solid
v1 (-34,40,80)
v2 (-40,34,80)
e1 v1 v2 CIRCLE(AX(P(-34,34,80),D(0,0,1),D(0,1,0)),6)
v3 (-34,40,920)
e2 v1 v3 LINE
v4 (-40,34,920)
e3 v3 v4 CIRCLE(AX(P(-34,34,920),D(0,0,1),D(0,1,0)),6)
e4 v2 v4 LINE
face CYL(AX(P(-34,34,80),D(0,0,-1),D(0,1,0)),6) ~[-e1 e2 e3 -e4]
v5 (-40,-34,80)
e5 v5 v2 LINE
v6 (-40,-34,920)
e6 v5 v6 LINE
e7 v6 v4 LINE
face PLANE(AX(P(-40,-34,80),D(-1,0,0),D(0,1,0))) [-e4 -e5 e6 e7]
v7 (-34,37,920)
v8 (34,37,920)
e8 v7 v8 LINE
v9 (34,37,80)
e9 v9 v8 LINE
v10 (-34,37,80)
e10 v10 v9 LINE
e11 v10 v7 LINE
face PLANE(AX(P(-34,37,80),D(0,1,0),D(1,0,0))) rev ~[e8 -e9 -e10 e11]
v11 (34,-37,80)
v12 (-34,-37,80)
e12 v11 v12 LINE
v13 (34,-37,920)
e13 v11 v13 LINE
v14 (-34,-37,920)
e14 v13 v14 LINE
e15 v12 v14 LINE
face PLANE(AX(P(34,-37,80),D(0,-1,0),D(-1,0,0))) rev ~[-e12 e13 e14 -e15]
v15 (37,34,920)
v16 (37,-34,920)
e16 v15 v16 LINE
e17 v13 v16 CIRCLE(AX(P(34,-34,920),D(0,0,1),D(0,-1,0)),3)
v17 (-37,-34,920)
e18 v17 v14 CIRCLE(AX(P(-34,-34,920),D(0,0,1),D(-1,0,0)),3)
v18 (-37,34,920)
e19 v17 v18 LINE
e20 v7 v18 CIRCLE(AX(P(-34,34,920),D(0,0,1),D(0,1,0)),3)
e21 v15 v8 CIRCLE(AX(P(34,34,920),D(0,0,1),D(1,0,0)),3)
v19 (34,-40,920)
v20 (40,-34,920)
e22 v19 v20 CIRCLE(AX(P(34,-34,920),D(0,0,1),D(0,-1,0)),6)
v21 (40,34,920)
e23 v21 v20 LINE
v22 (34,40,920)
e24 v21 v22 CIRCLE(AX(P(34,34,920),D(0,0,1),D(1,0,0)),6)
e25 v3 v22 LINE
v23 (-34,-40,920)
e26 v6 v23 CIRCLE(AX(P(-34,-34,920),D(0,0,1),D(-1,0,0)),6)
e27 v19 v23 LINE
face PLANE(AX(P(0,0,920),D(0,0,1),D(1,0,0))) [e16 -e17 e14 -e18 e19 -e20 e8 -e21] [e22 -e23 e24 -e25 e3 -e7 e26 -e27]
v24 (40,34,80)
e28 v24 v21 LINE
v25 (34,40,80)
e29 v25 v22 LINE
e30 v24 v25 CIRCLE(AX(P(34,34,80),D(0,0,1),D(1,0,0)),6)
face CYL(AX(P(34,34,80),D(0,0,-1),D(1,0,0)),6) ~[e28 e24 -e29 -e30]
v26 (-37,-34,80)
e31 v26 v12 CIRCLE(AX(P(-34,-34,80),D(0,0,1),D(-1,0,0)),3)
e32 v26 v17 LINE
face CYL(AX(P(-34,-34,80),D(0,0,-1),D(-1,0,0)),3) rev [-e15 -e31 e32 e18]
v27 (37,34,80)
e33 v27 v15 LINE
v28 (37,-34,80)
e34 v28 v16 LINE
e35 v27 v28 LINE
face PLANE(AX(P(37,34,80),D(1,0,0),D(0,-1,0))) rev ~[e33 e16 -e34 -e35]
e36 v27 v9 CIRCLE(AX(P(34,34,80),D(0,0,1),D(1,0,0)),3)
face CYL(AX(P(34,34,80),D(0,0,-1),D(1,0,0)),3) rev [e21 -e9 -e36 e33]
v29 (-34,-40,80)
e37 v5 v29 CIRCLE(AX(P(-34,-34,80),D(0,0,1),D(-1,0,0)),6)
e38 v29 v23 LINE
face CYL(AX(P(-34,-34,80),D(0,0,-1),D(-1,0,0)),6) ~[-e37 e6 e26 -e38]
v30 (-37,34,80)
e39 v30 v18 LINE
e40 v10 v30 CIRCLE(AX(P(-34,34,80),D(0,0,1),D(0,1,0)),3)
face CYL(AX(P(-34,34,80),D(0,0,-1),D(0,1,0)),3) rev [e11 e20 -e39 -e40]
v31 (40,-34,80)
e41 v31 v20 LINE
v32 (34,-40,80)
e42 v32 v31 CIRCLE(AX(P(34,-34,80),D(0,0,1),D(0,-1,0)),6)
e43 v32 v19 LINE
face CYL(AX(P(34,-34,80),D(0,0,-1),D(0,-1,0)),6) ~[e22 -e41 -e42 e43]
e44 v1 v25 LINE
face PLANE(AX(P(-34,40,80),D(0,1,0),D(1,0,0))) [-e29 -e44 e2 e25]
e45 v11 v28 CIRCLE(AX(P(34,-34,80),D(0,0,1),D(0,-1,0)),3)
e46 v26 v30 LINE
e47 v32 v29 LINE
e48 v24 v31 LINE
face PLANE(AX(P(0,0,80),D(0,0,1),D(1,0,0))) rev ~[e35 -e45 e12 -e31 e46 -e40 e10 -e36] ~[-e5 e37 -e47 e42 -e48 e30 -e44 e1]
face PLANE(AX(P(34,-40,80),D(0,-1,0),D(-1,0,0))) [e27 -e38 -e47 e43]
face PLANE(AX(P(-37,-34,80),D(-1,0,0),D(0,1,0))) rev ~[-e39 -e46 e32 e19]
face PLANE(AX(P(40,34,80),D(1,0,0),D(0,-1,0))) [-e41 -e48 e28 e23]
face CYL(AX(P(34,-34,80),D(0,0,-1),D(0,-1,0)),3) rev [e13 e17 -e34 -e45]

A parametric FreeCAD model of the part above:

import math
import FreeCAD as App
import Part
import Sketcher
from FreeCAD import Vector
Q = App.Units.Quantity

doc = App.newDocument("Part")
params = doc.addObject("Spreadsheet::Sheet", "Params")
for row, (alias, value) in enumerate([
    ("sketch1_radius", "6 mm"),
    ("sketch1_radius2", "3 mm"),
    ("pad1_length", "840 mm"),
], start=1):
    params.set(f"A{row}", alias)
    params.set(f"B{row}", "=" + value)
    params.setAlias(f"B{row}", alias)

body = doc.addObject("PartDesign::Body", "Body")

# Sketch on XY plane
sketch1 = body.newObject("Sketcher::SketchObject", "Sketch")
sketch1.AttachmentSupport = (doc.getObject("XY_Plane"), [""])
sketch1.MapMode = "FlatFace"
sketch1.AttachmentOffset = App.Placement(Vector(0, 0, 80), App.Rotation())
sketch1.addGeometry([
    Part.LineSegment(Vector(-40, 34, 0), Vector(-40, -34, 0)),  # 0
    Part.ArcOfCircle(Part.Circle(Vector(-34, -34, 0), Vector(0, 0, 1), 6), math.radians(180), math.radians(270)),  # 1
    Part.LineSegment(Vector(-34, -40, 0), Vector(34, -40, 0)),  # 2
    Part.ArcOfCircle(Part.Circle(Vector(34, -34, 0), Vector(0, 0, 1), 6), math.radians(-90), math.radians(0)),  # 3
    Part.LineSegment(Vector(40, -34, 0), Vector(40, 34, 0)),  # 4
    Part.ArcOfCircle(Part.Circle(Vector(34, 34, 0), Vector(0, 0, 1), 6), math.radians(0), math.radians(90)),  # 5
    Part.LineSegment(Vector(34, 40, 0), Vector(-34, 40, 0)),  # 6
    Part.ArcOfCircle(Part.Circle(Vector(-34, 34, 0), Vector(0, 0, 1), 6), math.radians(90), math.radians(180)),  # 7
    Part.ArcOfCircle(Part.Circle(Vector(-34, 34, 0), Vector(0, 0, 1), 3), math.radians(90), math.radians(180)),  # 8
    Part.LineSegment(Vector(-34, 37, 0), Vector(34, 37, 0)),  # 9
    Part.ArcOfCircle(Part.Circle(Vector(34, 34, 0), Vector(0, 0, 1), 3), math.radians(0), math.radians(90)),  # 10
    Part.LineSegment(Vector(37, 34, 0), Vector(37, -34, 0)),  # 11
    Part.ArcOfCircle(Part.Circle(Vector(34, -34, 0), Vector(0, 0, 1), 3), math.radians(-90), math.radians(0)),  # 12
    Part.LineSegment(Vector(34, -37, 0), Vector(-34, -37, 0)),  # 13
    Part.ArcOfCircle(Part.Circle(Vector(-34, -34, 0), Vector(0, 0, 1), 3), math.radians(180), math.radians(270)),  # 14
    Part.LineSegment(Vector(-37, -34, 0), Vector(-37, 34, 0)),  # 15
], False)
sketch1.addConstraint([
    Sketcher.Constraint("Tangent", 0, 2, 1, 1),
    Sketcher.Constraint("Tangent", 1, 2, 2, 1),
    Sketcher.Constraint("Tangent", 2, 2, 3, 1),
    Sketcher.Constraint("Tangent", 3, 2, 4, 1),
    Sketcher.Constraint("Tangent", 4, 2, 5, 1),
    Sketcher.Constraint("Tangent", 5, 2, 6, 1),
    Sketcher.Constraint("Tangent", 6, 2, 7, 1),
    Sketcher.Constraint("Tangent", 7, 2, 0, 1),
    Sketcher.Constraint("Tangent", 8, 1, 9, 1),
    Sketcher.Constraint("Tangent", 9, 2, 10, 2),
    Sketcher.Constraint("Tangent", 10, 1, 11, 1),
    Sketcher.Constraint("Tangent", 11, 2, 12, 2),
    Sketcher.Constraint("Tangent", 12, 1, 13, 1),
    Sketcher.Constraint("Tangent", 13, 2, 14, 2),
    Sketcher.Constraint("Tangent", 14, 1, 15, 1),
    Sketcher.Constraint("Tangent", 15, 2, 8, 2),
    Sketcher.Constraint("Vertical", 0),
    Sketcher.Constraint("Horizontal", 2),
    Sketcher.Constraint("Vertical", 4),
    Sketcher.Constraint("Horizontal", 6),
    Sketcher.Constraint("Horizontal", 9),
    Sketcher.Constraint("Vertical", 11),
    Sketcher.Constraint("Horizontal", 13),
    Sketcher.Constraint("Vertical", 15),
    Sketcher.Constraint("Coincident", 8, 3, 7, 3),
    Sketcher.Constraint("Coincident", 10, 3, 5, 3),
    Sketcher.Constraint("Coincident", 12, 3, 3, 3),
    Sketcher.Constraint("Equal", 1, 3),
    Sketcher.Constraint("Equal", 3, 5),
    Sketcher.Constraint("Equal", 5, 7),
    Sketcher.Constraint("Equal", 12, 14),
    Sketcher.Constraint("Symmetric", 1, 3, 5, 3, -1, 1),
    Sketcher.Constraint("Equal", 13, 0),
    Sketcher.Constraint("Radius", 1, Q("6 mm")),
    Sketcher.Constraint("Radius", 8, Q("3 mm")),
    Sketcher.Constraint("DistanceX", 0, 2, -1, 1, Q("40 mm")),
])
sketch1.setExpression("Constraints[33]", "Params.sketch1_radius")
sketch1.setExpression("Constraints[34]", "Params.sketch1_radius2")
pad1 = body.newObject("PartDesign::Pad", "Pad")
pad1.Profile = sketch1
pad1.setExpression("Length", "Params.pad1_length")

doc.recompute()
